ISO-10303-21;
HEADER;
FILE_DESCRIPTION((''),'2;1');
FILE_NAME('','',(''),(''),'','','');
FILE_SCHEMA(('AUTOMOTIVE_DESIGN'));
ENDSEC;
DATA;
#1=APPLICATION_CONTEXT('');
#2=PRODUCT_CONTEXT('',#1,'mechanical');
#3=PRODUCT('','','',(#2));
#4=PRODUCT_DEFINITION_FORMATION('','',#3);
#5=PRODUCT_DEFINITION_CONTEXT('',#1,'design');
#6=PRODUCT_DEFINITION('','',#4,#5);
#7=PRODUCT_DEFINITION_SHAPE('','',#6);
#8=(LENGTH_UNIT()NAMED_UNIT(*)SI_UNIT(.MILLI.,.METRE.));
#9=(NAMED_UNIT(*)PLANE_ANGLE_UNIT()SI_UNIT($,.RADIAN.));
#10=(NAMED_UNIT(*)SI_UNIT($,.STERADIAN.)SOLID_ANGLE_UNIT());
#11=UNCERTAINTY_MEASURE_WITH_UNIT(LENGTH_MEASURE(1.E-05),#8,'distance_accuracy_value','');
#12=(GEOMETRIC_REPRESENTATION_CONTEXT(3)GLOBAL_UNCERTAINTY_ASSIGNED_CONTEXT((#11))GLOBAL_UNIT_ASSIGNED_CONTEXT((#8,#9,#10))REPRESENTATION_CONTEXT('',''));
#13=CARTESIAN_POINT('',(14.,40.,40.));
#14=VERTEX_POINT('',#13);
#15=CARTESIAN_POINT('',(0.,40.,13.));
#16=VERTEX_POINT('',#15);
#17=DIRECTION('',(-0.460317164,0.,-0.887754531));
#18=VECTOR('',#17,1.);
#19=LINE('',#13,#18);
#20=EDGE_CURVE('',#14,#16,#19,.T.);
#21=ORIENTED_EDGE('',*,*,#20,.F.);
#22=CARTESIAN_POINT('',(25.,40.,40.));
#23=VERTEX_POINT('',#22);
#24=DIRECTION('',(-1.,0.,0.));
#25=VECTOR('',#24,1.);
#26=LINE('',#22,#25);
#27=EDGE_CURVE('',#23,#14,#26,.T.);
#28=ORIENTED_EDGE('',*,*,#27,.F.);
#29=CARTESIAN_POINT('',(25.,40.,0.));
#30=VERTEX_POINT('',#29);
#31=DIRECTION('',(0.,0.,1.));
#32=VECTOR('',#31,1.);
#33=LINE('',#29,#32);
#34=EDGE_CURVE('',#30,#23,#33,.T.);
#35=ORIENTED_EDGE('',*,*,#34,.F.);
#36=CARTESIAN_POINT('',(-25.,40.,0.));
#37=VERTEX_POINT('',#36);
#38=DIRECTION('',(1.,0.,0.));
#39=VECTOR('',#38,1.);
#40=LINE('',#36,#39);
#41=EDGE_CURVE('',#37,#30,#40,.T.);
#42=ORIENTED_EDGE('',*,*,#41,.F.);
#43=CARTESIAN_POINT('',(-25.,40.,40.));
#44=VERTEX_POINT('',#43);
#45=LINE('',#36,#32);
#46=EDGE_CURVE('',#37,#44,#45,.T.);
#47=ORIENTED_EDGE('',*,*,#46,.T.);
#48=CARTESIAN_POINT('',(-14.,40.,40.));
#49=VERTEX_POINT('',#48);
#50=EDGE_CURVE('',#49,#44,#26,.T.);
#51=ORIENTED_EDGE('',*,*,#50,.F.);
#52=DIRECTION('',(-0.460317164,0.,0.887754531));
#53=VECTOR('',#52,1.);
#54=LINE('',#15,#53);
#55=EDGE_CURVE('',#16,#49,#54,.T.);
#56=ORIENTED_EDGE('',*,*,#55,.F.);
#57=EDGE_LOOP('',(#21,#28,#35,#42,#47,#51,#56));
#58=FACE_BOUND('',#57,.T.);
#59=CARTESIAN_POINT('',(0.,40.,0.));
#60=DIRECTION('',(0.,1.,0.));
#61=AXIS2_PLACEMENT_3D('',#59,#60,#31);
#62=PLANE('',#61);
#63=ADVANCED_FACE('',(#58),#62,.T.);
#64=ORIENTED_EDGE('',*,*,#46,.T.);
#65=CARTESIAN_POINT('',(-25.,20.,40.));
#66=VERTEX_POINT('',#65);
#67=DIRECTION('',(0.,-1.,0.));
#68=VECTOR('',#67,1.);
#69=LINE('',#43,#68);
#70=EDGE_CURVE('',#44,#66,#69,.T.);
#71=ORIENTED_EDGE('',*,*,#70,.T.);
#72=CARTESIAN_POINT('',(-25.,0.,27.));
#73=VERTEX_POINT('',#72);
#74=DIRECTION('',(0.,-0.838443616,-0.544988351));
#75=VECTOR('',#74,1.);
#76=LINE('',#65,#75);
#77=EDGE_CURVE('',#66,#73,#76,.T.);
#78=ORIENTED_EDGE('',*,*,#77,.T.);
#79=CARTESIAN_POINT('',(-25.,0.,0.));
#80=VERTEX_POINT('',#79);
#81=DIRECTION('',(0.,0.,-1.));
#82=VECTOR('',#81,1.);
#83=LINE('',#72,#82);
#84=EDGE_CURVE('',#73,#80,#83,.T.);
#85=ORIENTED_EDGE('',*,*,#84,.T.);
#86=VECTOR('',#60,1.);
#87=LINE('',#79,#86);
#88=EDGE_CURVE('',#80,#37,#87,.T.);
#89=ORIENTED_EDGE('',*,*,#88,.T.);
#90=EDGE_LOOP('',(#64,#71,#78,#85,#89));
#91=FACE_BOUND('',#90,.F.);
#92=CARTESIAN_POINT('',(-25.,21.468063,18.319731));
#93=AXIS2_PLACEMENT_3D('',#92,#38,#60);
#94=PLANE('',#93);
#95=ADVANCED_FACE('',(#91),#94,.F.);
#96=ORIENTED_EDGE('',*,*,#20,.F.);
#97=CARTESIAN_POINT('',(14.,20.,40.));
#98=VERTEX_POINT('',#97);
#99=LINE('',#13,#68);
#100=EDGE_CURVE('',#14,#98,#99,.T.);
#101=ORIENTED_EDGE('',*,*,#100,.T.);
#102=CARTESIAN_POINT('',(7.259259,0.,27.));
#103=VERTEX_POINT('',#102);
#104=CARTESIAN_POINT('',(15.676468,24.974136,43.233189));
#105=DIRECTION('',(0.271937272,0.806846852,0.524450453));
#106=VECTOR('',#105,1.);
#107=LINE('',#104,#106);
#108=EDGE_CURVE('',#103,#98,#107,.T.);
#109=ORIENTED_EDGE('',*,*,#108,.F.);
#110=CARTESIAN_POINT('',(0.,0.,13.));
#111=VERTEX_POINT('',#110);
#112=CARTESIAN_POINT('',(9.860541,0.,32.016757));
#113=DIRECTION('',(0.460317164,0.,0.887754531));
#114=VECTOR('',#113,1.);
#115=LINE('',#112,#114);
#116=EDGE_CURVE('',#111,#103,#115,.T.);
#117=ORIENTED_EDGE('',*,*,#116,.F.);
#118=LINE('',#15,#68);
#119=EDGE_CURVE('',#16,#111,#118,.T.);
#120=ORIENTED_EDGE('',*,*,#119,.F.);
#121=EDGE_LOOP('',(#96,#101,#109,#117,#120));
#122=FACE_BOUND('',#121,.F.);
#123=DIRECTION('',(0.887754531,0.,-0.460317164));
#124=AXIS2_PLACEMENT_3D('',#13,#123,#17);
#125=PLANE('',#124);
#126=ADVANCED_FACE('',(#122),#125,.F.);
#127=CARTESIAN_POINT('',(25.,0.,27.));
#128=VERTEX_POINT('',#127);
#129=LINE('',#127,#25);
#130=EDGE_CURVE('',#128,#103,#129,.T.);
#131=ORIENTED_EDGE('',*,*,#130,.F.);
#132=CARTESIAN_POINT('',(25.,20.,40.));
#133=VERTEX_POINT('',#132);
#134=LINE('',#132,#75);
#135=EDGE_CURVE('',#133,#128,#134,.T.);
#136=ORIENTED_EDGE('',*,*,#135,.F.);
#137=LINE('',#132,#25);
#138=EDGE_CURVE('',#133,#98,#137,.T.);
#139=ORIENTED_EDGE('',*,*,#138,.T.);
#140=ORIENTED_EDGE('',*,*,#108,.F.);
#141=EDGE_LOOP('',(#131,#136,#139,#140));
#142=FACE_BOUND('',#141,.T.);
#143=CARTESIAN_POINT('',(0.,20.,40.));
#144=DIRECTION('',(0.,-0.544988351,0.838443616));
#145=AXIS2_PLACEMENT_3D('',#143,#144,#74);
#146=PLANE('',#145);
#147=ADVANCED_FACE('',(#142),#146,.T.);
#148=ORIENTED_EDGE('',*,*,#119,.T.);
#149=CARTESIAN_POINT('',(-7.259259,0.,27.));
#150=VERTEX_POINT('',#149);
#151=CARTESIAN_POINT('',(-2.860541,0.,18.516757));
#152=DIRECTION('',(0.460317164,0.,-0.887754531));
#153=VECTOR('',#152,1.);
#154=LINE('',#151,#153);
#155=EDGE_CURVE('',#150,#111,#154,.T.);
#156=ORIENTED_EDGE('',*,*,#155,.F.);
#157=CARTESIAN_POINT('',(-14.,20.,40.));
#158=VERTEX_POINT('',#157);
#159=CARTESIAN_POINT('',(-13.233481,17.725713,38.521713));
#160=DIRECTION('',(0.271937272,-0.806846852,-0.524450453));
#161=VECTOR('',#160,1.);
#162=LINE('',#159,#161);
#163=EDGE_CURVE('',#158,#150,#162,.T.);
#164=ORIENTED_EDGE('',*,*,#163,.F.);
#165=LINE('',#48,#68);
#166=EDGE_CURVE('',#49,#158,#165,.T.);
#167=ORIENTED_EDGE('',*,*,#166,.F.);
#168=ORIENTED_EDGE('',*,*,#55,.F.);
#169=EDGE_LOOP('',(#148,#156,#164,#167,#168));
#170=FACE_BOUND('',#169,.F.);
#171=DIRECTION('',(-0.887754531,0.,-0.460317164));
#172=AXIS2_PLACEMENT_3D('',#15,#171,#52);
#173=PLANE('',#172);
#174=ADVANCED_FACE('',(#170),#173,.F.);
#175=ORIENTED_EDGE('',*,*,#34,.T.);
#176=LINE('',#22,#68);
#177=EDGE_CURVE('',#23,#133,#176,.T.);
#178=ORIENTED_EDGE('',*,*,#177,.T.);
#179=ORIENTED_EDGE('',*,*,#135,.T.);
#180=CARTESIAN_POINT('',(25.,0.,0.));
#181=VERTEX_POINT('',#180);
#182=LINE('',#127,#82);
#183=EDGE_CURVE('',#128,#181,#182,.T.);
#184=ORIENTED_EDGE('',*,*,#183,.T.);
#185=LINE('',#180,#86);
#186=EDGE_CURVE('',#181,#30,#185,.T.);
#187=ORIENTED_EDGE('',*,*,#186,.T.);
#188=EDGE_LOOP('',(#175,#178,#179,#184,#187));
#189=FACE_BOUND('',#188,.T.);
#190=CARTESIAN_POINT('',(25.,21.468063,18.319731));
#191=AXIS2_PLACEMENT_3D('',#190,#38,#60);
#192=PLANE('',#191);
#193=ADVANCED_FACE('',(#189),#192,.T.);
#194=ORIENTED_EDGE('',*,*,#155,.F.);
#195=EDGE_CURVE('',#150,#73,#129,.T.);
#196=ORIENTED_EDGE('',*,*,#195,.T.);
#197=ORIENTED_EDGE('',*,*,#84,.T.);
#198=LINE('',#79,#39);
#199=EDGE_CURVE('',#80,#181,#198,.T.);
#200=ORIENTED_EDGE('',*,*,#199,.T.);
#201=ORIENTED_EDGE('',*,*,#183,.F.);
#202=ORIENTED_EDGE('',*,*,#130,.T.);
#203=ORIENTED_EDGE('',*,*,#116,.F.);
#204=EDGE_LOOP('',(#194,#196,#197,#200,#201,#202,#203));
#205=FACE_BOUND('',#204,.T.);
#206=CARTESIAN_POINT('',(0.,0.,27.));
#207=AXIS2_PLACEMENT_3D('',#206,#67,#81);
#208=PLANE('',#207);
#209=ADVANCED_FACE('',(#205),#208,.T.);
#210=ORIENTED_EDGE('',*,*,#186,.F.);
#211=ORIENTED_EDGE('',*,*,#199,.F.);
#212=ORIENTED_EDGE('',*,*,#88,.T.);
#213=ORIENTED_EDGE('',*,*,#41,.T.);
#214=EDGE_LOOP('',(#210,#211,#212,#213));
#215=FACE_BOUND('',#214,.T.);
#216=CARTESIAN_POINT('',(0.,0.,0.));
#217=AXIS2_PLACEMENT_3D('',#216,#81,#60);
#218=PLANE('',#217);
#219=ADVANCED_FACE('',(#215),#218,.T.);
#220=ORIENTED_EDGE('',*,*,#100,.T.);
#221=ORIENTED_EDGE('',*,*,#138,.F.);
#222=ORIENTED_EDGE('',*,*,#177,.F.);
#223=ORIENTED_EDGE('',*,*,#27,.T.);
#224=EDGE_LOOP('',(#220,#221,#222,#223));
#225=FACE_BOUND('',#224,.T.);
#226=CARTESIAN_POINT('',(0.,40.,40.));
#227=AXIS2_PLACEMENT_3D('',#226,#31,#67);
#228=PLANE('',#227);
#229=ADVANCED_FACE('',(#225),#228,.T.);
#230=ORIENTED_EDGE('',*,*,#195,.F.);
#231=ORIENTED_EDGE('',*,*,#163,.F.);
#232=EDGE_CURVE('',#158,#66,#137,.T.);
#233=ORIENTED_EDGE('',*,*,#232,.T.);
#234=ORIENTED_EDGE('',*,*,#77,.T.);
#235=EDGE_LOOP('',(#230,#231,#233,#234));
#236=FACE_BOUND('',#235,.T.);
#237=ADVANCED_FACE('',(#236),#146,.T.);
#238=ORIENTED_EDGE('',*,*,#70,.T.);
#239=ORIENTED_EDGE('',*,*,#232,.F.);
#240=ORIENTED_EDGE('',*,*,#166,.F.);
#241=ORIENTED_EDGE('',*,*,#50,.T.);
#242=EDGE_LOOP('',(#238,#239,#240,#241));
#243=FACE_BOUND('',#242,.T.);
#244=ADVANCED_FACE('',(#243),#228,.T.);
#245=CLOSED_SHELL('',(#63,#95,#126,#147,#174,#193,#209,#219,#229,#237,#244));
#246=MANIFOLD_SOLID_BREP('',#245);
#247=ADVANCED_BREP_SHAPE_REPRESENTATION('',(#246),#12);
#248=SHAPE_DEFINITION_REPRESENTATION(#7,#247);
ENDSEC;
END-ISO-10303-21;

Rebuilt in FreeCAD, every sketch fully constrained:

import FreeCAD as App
import Part
import Sketcher

V = App.Vector
Q = App.Units.Quantity


def add_polygon(sketch, points):
    """Adds a closed chain of lines whose ends are joined by coincident constraints."""
    first, n = sketch.GeometryCount, len(points)
    for a, b in zip(points, points[1:] + points[:1]):
        sketch.addGeometry(Part.LineSegment(App.Vector(*a, 0), App.Vector(*b, 0)), False)
    for i in range(n):
        sketch.addConstraint(Sketcher.Constraint("Coincident", first + i, 2, first + (i + 1) % n, 1))

doc = App.newDocument("Part")
body = doc.addObject("PartDesign::Body", "Body")

# Sketch on YZ plane
sketch1 = body.newObject("Sketcher::SketchObject", "Sketch")
sketch1.AttachmentSupport = (doc.getObject("YZ_Plane"), [""])
sketch1.MapMode = "FlatFace"
add_polygon(sketch1, [(0, 27), (0, 0), (40, 0), (40, 40), (20, 40)])  # lines 0-4
sketch1.addConstraint([
    Sketcher.Constraint("Vertical", 0),
    Sketcher.Constraint("Horizontal", 1),
    Sketcher.Constraint("Vertical", 2),
    Sketcher.Constraint("Horizontal", 3),
    Sketcher.Constraint("Coincident", 0, 2, -1, 1),
    Sketcher.Constraint("Equal", 1, 2),
    Sketcher.Constraint("DistanceX", 1, 1, 1, 2, Q("40 mm")),
    Sketcher.Constraint("DistanceX", 3, 2, 3, 1, Q("20 mm")),
    Sketcher.Constraint("DistanceY", 0, 2, 0, 1, Q("27 mm")),
])
pad1 = body.newObject("PartDesign::Pad", "Pad")
pad1.Profile = sketch1
pad1.Length = 50
pad1.Midplane = True

# Sketch on XZ plane
sketch2 = body.newObject("Sketcher::SketchObject", "Sketch001")
sketch2.AttachmentSupport = (doc.getObject("XZ_Plane"), [""])
sketch2.MapMode = "FlatFace"
sketch2.AttachmentOffset = App.Placement(V(0, 0, -40), App.Rotation())
add_polygon(sketch2, [(-14, 40), (14, 40), (0, 13)])  # lines 0-2
sketch2.addConstraint([
    Sketcher.Constraint("Horizontal", 0),
    Sketcher.Constraint("PointOnObject", 1, 2, -2),
    Sketcher.Constraint("Equal", 1, 2),
    Sketcher.Constraint("DistanceX", 0, 1, 0, 2, Q("28 mm")),
    Sketcher.Constraint("DistanceY", -1, 1, 0, 2, Q("40 mm")),
    Sketcher.Constraint("DistanceY", -1, 1, 1, 2, Q("13 mm")),
])
pocket1 = body.newObject("PartDesign::Pocket", "Pocket")
pocket1.Profile = sketch2
pocket1.Type = "ThroughAll"
pocket1.Reversed = True

doc.recompute()
